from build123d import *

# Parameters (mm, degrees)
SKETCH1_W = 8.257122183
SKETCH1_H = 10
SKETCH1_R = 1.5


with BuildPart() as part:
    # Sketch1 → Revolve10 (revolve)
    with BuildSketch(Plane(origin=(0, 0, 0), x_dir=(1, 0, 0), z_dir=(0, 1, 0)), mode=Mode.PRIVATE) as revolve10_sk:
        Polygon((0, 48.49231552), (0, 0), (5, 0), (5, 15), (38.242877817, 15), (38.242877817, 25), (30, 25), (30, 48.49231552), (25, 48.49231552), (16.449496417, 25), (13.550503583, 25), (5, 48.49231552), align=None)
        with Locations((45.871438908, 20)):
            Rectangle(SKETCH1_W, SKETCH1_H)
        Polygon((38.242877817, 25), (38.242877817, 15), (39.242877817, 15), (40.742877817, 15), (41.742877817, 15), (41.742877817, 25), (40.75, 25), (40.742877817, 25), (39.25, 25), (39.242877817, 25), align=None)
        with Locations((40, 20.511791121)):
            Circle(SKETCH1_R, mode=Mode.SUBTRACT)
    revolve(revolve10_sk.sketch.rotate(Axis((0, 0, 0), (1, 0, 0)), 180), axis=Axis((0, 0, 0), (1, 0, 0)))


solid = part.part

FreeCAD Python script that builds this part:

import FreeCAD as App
import Part
import Sketcher
from FreeCAD import Vector
Q = App.Units.Quantity


def add_polygon(sketch, points):
    """Adds a closed chain of lines whose ends are joined by coincident constraints."""
    first, n = sketch.GeometryCount, len(points)
    for a, b in zip(points, points[1:] + points[:1]):
        sketch.addGeometry(Part.LineSegment(App.Vector(*a, 0), App.Vector(*b, 0)), False)
    for i in range(n):
        sketch.addConstraint(Sketcher.Constraint("Coincident", first + i, 2, first + (i + 1) % n, 1))

doc = App.newDocument("Part")
body = doc.addObject("PartDesign::Body", "Body")

# Sketch on XZ plane
sketch1 = body.newObject("Sketcher::SketchObject", "Sketch")
sketch1.AttachmentSupport = (doc.getObject("XZ_Plane"), [""])
sketch1.MapMode = "FlatFace"
add_polygon(sketch1, [(0, -48.5), (0, 0), (5, 0), (5, -15), (50, -15), (50, -25), (30, -25), (30, -48.5), (25, -48.5), (16.4, -25), (13.6, -25), (5, -48.5)])  # lines 0-11
sketch1.addGeometry(Part.Circle(Vector(40, -20.5, 0), Vector(0, 0, 1), 1.5), False)  # 12
sketch1.addConstraint([
    Sketcher.Constraint("Vertical", 0),
    Sketcher.Constraint("Horizontal", 1),
    Sketcher.Constraint("Vertical", 2),
    Sketcher.Constraint("Horizontal", 3),
    Sketcher.Constraint("Vertical", 4),
    Sketcher.Constraint("Horizontal", 5),
    Sketcher.Constraint("Vertical", 6),
    Sketcher.Constraint("Horizontal", 7),
    Sketcher.Constraint("Horizontal", 9),
    Sketcher.Constraint("Horizontal", 11),
    Sketcher.Constraint("Coincident", 0, 2, -1, 1),
    Sketcher.Constraint("Horizontal", 5, 2, 8, 2),
    Sketcher.Constraint("Horizontal", 7, 2, 10, 2),
    Sketcher.Constraint("Vertical", 2, 2, 10, 2),
    Sketcher.Constraint("Equal", 1, 7),
    Sketcher.Constraint("Equal", 8, 10),
    Sketcher.Constraint("Diameter", 12, 3.0),
    Sketcher.Constraint("DistanceX", 1, 1, 1, 2, 5.0),
    Sketcher.Constraint("DistanceX", 3, 1, 3, 2, 45.0),
    Sketcher.Constraint("DistanceX", 5, 2, 5, 1, 20.0),
    Sketcher.Constraint("DistanceY", 2, 2, 2, 1, 15.0),
    Sketcher.Constraint("DistanceY", 4, 2, 4, 1, 10.0),
    Sketcher.Constraint("Angle", 8, Q("110 deg")),
    Sketcher.Constraint("Distance", 8, 25.0),
    Sketcher.Constraint("DistanceX", -1, 1, 12, 3, 40.0),
    Sketcher.Constraint("DistanceY", 12, 3, -1, 1, 20.511791),
])
revolution = body.newObject("PartDesign::Revolution", "Revolution")
revolution.Profile = sketch1
revolution.ReferenceAxis = (sketch1, ["H_Axis"])
revolution.Angle = 360

doc.recompute()
